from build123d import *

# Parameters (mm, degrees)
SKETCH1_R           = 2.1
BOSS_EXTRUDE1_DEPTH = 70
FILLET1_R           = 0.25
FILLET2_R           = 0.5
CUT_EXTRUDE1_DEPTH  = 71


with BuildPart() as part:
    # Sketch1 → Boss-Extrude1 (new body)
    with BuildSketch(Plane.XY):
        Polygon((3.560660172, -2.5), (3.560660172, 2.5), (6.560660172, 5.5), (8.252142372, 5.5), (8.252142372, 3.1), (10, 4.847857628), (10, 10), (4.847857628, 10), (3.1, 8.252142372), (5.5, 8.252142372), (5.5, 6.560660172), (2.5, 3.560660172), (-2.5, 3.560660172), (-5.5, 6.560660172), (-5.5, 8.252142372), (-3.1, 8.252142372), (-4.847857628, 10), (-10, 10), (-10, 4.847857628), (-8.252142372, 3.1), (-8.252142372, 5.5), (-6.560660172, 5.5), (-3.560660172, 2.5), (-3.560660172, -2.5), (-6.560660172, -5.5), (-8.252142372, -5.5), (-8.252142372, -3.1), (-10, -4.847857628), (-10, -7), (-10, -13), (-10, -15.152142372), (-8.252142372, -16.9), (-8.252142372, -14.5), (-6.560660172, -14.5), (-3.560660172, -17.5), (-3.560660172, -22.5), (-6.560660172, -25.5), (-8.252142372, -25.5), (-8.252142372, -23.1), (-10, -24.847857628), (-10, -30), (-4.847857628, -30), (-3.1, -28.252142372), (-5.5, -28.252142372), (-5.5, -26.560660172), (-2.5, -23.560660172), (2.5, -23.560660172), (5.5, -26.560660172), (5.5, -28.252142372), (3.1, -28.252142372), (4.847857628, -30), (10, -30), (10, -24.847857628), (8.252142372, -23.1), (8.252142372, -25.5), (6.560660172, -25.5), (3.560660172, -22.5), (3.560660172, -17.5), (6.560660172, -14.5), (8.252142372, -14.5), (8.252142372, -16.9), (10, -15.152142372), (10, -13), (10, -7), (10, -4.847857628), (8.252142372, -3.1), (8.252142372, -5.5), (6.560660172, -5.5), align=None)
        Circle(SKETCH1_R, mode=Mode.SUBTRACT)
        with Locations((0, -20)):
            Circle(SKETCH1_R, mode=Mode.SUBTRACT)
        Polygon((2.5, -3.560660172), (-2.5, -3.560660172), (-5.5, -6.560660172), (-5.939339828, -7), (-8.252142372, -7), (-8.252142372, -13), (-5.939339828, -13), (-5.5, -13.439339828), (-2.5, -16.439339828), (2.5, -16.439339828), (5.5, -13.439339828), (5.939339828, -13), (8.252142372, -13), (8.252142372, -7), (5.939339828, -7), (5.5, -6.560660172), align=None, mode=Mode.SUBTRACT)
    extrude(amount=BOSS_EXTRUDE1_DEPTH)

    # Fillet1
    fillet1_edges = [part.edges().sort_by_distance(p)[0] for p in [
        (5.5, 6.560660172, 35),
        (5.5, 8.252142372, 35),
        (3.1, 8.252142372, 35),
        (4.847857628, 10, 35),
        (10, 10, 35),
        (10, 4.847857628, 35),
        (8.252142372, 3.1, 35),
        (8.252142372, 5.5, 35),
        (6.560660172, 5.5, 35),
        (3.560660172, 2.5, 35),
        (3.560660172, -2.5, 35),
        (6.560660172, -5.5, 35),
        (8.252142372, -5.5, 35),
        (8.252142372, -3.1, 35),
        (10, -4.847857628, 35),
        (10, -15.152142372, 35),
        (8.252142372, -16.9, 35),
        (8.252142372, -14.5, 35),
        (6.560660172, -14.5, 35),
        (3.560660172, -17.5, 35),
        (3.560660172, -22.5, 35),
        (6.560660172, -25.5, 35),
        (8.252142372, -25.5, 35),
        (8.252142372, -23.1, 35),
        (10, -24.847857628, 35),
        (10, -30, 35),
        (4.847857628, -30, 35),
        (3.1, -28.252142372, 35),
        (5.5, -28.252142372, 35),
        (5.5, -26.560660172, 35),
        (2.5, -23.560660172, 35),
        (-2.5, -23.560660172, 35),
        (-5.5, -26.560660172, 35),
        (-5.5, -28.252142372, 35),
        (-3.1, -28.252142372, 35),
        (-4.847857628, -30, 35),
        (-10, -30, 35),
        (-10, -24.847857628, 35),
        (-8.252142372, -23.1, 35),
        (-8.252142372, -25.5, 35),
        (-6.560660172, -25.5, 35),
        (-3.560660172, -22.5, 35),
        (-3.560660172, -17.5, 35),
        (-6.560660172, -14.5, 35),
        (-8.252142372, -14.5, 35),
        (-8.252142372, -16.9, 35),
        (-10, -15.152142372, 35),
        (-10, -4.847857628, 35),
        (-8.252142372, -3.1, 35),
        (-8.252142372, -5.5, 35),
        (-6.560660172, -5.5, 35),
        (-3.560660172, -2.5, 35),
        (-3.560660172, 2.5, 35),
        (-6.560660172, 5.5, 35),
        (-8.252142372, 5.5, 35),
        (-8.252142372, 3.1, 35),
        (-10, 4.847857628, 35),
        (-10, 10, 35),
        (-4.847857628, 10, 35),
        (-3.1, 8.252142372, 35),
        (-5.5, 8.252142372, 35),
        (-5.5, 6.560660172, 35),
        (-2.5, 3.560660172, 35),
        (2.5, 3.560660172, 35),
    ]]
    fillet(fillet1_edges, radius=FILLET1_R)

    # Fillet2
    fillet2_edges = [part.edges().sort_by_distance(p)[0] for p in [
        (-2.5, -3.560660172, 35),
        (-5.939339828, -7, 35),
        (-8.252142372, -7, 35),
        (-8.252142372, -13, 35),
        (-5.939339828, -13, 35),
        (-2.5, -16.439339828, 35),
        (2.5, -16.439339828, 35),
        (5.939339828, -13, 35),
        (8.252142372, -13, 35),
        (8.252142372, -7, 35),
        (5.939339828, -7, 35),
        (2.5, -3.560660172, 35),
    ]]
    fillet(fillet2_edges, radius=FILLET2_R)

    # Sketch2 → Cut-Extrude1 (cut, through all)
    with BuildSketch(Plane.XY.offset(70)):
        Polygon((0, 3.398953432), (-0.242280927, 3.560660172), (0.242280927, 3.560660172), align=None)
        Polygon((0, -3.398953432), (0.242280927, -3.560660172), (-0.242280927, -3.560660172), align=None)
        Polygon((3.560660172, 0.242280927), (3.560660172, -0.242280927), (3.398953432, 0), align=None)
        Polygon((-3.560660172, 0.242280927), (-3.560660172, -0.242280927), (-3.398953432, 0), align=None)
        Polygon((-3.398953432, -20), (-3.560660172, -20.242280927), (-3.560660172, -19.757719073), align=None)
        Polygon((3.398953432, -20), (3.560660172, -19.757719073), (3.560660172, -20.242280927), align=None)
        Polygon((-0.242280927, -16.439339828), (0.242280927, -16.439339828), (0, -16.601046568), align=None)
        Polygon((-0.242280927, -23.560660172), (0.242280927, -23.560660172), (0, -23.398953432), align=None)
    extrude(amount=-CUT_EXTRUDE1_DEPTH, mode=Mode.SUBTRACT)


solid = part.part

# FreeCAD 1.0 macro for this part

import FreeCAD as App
import Part
import Sketcher
from FreeCAD import Vector
Q = App.Units.Quantity


def edges_at(feature, points):
    """Names of the edges that pass closest to the given points."""
    edges = feature.Shape.Edges
    near = lambda p: min(range(len(edges)), key=lambda i: edges[i].distToShape(Part.Vertex(*p))[0])
    return sorted({f"Edge{near(p) + 1}" for p in points})

doc = App.newDocument("Part")
body = doc.addObject("PartDesign::Body", "Body")

# Sketch on XY plane
sketch1 = body.newObject("Sketcher::SketchObject", "Sketch")
sketch1.AttachmentSupport = (doc.getObject("XY_Plane"), [""])
sketch1.MapMode = "FlatFace"
sketch1.addGeometry(Part.LineSegment(Vector(3.6, -2.5, 0), Vector(3.6, 2.5, 0)), False)
sketch1.addGeometry(Part.LineSegment(Vector(3.6, 2.5, 0), Vector(6.6, 5.5, 0)), False)
sketch1.addGeometry(Part.LineSegment(Vector(6.6, 5.5, 0), Vector(8.3, 5.5, 0)), False)
sketch1.addGeometry(Part.LineSegment(Vector(8.3, 5.5, 0), Vector(8.3, 3.1, 0)), False)
sketch1.addGeometry(Part.LineSegment(Vector(8.3, 3.1, 0), Vector(10, 4.8, 0)), False)
sketch1.addGeometry(Part.LineSegment(Vector(10, 4.8, 0), Vector(10, 10, 0)), False)
sketch1.addGeometry(Part.LineSegment(Vector(10, 10, 0), Vector(4.8, 10, 0)), False)
sketch1.addGeometry(Part.LineSegment(Vector(4.8, 10, 0), Vector(3.1, 8.3, 0)), False)
sketch1.addGeometry(Part.LineSegment(Vector(3.1, 8.3, 0), Vector(5.5, 8.3, 0)), False)
sketch1.addGeometry(Part.LineSegment(Vector(5.5, 8.3, 0), Vector(5.5, 6.6, 0)), False)
sketch1.addGeometry(Part.LineSegment(Vector(5.5, 6.6, 0), Vector(2.5, 3.6, 0)), False)
sketch1.addGeometry(Part.LineSegment(Vector(2.5, 3.6, 0), Vector(-2.5, 3.6, 0)), False)
sketch1.addGeometry(Part.LineSegment(Vector(-2.5, 3.6, 0), Vector(-5.5, 6.6, 0)), False)
sketch1.addGeometry(Part.LineSegment(Vector(-5.5, 6.6, 0), Vector(-5.5, 8.3, 0)), False)
sketch1.addGeometry(Part.LineSegment(Vector(-5.5, 8.3, 0), Vector(-3.1, 8.3, 0)), False)
sketch1.addGeometry(Part.LineSegment(Vector(-3.1, 8.3, 0), Vector(-4.8, 10, 0)), False)
sketch1.addGeometry(Part.LineSegment(Vector(-4.8, 10, 0), Vector(-10, 10, 0)), False)
sketch1.addGeometry(Part.LineSegment(Vector(-10, 10, 0), Vector(-10, 4.8, 0)), False)
sketch1.addGeometry(Part.LineSegment(Vector(-10, 4.8, 0), Vector(-8.3, 3.1, 0)), False)
sketch1.addGeometry(Part.LineSegment(Vector(-8.3, 3.1, 0), Vector(-8.3, 5.5, 0)), False)
sketch1.addGeometry(Part.LineSegment(Vector(-8.3, 5.5, 0), Vector(-6.6, 5.5, 0)), False)
sketch1.addGeometry(Part.LineSegment(Vector(-6.6, 5.5, 0), Vector(-3.6, 2.5, 0)), False)
sketch1.addGeometry(Part.LineSegment(Vector(-3.6, 2.5, 0), Vector(-3.6, -2.5, 0)), False)
sketch1.addGeometry(Part.LineSegment(Vector(-3.6, -2.5, 0), Vector(-6.6, -5.5, 0)), False)
sketch1.addGeometry(Part.LineSegment(Vector(-6.6, -5.5, 0), Vector(-8.3, -5.5, 0)), False)
sketch1.addGeometry(Part.LineSegment(Vector(-8.3, -5.5, 0), Vector(-8.3, -3.1, 0)), False)
sketch1.addGeometry(Part.LineSegment(Vector(-8.3, -3.1, 0), Vector(-10, -4.8, 0)), False)
sketch1.addGeometry(Part.LineSegment(Vector(-10, -4.8, 0), Vector(-10, -15.2, 0)), False)
sketch1.addGeometry(Part.LineSegment(Vector(-10, -15.2, 0), Vector(-8.3, -16.9, 0)), False)
sketch1.addGeometry(Part.LineSegment(Vector(-8.3, -16.9, 0), Vector(-8.3, -14.5, 0)), False)
sketch1.addGeometry(Part.LineSegment(Vector(-8.3, -14.5, 0), Vector(-6.6, -14.5, 0)), False)
sketch1.addGeometry(Part.LineSegment(Vector(-6.6, -14.5, 0), Vector(-3.6, -17.5, 0)), False)
sketch1.addGeometry(Part.LineSegment(Vector(-3.6, -17.5, 0), Vector(-3.6, -22.5, 0)), False)
sketch1.addGeometry(Part.LineSegment(Vector(-3.6, -22.5, 0), Vector(-6.6, -25.5, 0)), False)
sketch1.addGeometry(Part.LineSegment(Vector(-6.6, -25.5, 0), Vector(-8.3, -25.5, 0)), False)
sketch1.addGeometry(Part.LineSegment(Vector(-8.3, -25.5, 0), Vector(-8.3, -23.1, 0)), False)
sketch1.addGeometry(Part.LineSegment(Vector(-8.3, -23.1, 0), Vector(-10, -24.8, 0)), False)
sketch1.addGeometry(Part.LineSegment(Vector(-10, -24.8, 0), Vector(-10, -30, 0)), False)
sketch1.addGeometry(Part.LineSegment(Vector(-10, -30, 0), Vector(-4.8, -30, 0)), False)
sketch1.addGeometry(Part.LineSegment(Vector(-4.8, -30, 0), Vector(-3.1, -28.3, 0)), False)
sketch1.addGeometry(Part.LineSegment(Vector(-3.1, -28.3, 0), Vector(-5.5, -28.3, 0)), False)
sketch1.addGeometry(Part.LineSegment(Vector(-5.5, -28.3, 0), Vector(-5.5, -26.6, 0)), False)
sketch1.addGeometry(Part.LineSegment(Vector(-5.5, -26.6, 0), Vector(-2.5, -23.6, 0)), False)
sketch1.addGeometry(Part.LineSegment(Vector(-2.5, -23.6, 0), Vector(2.5, -23.6, 0)), False)
sketch1.addGeometry(Part.LineSegment(Vector(2.5, -23.6, 0), Vector(5.5, -26.6, 0)), False)
sketch1.addGeometry(Part.LineSegment(Vector(5.5, -26.6, 0), Vector(5.5, -28.3, 0)), False)
sketch1.addGeometry(Part.LineSegment(Vector(5.5, -28.3, 0), Vector(3.1, -28.3, 0)), False)
sketch1.addGeometry(Part.LineSegment(Vector(3.1, -28.3, 0), Vector(4.8, -30, 0)), False)
sketch1.addGeometry(Part.LineSegment(Vector(4.8, -30, 0), Vector(10, -30, 0)), False)
sketch1.addGeometry(Part.LineSegment(Vector(10, -30, 0), Vector(10, -24.8, 0)), False)
sketch1.addGeometry(Part.LineSegment(Vector(10, -24.8, 0), Vector(8.3, -23.1, 0)), False)
sketch1.addGeometry(Part.LineSegment(Vector(8.3, -23.1, 0), Vector(8.3, -25.5, 0)), False)
sketch1.addGeometry(Part.LineSegment(Vector(8.3, -25.5, 0), Vector(6.6, -25.5, 0)), False)
sketch1.addGeometry(Part.LineSegment(Vector(6.6, -25.5, 0), Vector(3.6, -22.5, 0)), False)
sketch1.addGeometry(Part.LineSegment(Vector(3.6, -22.5, 0), Vector(3.6, -17.5, 0)), False)
sketch1.addGeometry(Part.LineSegment(Vector(3.6, -17.5, 0), Vector(6.6, -14.5, 0)), False)
sketch1.addGeometry(Part.LineSegment(Vector(6.6, -14.5, 0), Vector(8.3, -14.5, 0)), False)
sketch1.addGeometry(Part.LineSegment(Vector(8.3, -14.5, 0), Vector(8.3, -16.9, 0)), False)
sketch1.addGeometry(Part.LineSegment(Vector(8.3, -16.9, 0), Vector(10, -15.2, 0)), False)
sketch1.addGeometry(Part.LineSegment(Vector(10, -15.2, 0), Vector(10, -4.8, 0)), False)
sketch1.addGeometry(Part.LineSegment(Vector(10, -4.8, 0), Vector(8.3, -3.1, 0)), False)
sketch1.addGeometry(Part.LineSegment(Vector(8.3, -3.1, 0), Vector(8.3, -5.5, 0)), False)
sketch1.addGeometry(Part.LineSegment(Vector(8.3, -5.5, 0), Vector(6.6, -5.5, 0)), False)
sketch1.addGeometry(Part.LineSegment(Vector(6.6, -5.5, 0), Vector(3.6, -2.5, 0)), False)
sketch1.addGeometry(Part.Circle(Vector(0, -20, 0), Vector(0, 0, 1), 2.1), False)
sketch1.addGeometry(Part.LineSegment(Vector(-2.5, -3.6, 0), Vector(2.5, -3.6, 0)), False)
sketch1.addGeometry(Part.LineSegment(Vector(2.5, -3.6, 0), Vector(5.9, -7, 0)), False)
sketch1.addGeometry(Part.LineSegment(Vector(5.9, -7, 0), Vector(8.3, -7, 0)), False)
sketch1.addGeometry(Part.LineSegment(Vector(8.3, -7, 0), Vector(8.3, -13, 0)), False)
sketch1.addGeometry(Part.LineSegment(Vector(8.3, -13, 0), Vector(5.9, -13, 0)), False)
sketch1.addGeometry(Part.LineSegment(Vector(5.9, -13, 0), Vector(2.5, -16.4, 0)), False)
sketch1.addGeometry(Part.LineSegment(Vector(2.5, -16.4, 0), Vector(-2.5, -16.4, 0)), False)
sketch1.addGeometry(Part.LineSegment(Vector(-2.5, -16.4, 0), Vector(-5.9, -13, 0)), False)
sketch1.addGeometry(Part.LineSegment(Vector(-5.9, -13, 0), Vector(-8.3, -13, 0)), False)
sketch1.addGeometry(Part.LineSegment(Vector(-8.3, -13, 0), Vector(-8.3, -7, 0)), False)
sketch1.addGeometry(Part.LineSegment(Vector(-8.3, -7, 0), Vector(-5.9, -7, 0)), False)
sketch1.addGeometry(Part.LineSegment(Vector(-5.9, -7, 0), Vector(-2.5, -3.6, 0)), False)
sketch1.addGeometry(Part.Circle(Vector(0, 0, 0), Vector(0, 0, 1), 2.1), False)
sketch1.addConstraint(Sketcher.Constraint("Coincident", 0, 2, 1, 1))
sketch1.addConstraint(Sketcher.Constraint("Coincident", 1, 2, 2, 1))
sketch1.addConstraint(Sketcher.Constraint("Coincident", 2, 2, 3, 1))
sketch1.addConstraint(Sketcher.Constraint("Coincident", 3, 2, 4, 1))
sketch1.addConstraint(Sketcher.Constraint("Coincident", 4, 2, 5, 1))
sketch1.addConstraint(Sketcher.Constraint("Coincident", 5, 2, 6, 1))
sketch1.addConstraint(Sketcher.Constraint("Coincident", 6, 2, 7, 1))
sketch1.addConstraint(Sketcher.Constraint("Coincident", 7, 2, 8, 1))
sketch1.addConstraint(Sketcher.Constraint("Coincident", 8, 2, 9, 1))
sketch1.addConstraint(Sketcher.Constraint("Coincident", 9, 2, 10, 1))
sketch1.addConstraint(Sketcher.Constraint("Coincident", 10, 2, 11, 1))
sketch1.addConstraint(Sketcher.Constraint("Coincident", 11, 2, 12, 1))
sketch1.addConstraint(Sketcher.Constraint("Coincident", 12, 2, 13, 1))
sketch1.addConstraint(Sketcher.Constraint("Coincident", 13, 2, 14, 1))
sketch1.addConstraint(Sketcher.Constraint("Coincident", 14, 2, 15, 1))
sketch1.addConstraint(Sketcher.Constraint("Coincident", 15, 2, 16, 1))
sketch1.addConstraint(Sketcher.Constraint("Coincident", 16, 2, 17, 1))
sketch1.addConstraint(Sketcher.Constraint("Coincident", 17, 2, 18, 1))
sketch1.addConstraint(Sketcher.Constraint("Coincident", 18, 2, 19, 1))
sketch1.addConstraint(Sketcher.Constraint("Coincident", 19, 2, 20, 1))
sketch1.addConstraint(Sketcher.Constraint("Coincident", 20, 2, 21, 1))
sketch1.addConstraint(Sketcher.Constraint("Coincident", 21, 2, 22, 1))
sketch1.addConstraint(Sketcher.Constraint("Coincident", 22, 2, 23, 1))
sketch1.addConstraint(Sketcher.Constraint("Coincident", 23, 2, 24, 1))
sketch1.addConstraint(Sketcher.Constraint("Coincident", 24, 2, 25, 1))
sketch1.addConstraint(Sketcher.Constraint("Coincident", 25, 2, 26, 1))
sketch1.addConstraint(Sketcher.Constraint("Coincident", 26, 2, 27, 1))
sketch1.addConstraint(Sketcher.Constraint("Coincident", 27, 2, 28, 1))
sketch1.addConstraint(Sketcher.Constraint("Coincident", 28, 2, 29, 1))
sketch1.addConstraint(Sketcher.Constraint("Coincident", 29, 2, 30, 1))
sketch1.addConstraint(Sketcher.Constraint("Coincident", 30, 2, 31, 1))
sketch1.addConstraint(Sketcher.Constraint("Coincident", 31, 2, 32, 1))
sketch1.addConstraint(Sketcher.Constraint("Coincident", 32, 2, 33, 1))
sketch1.addConstraint(Sketcher.Constraint("Coincident", 33, 2, 34, 1))
sketch1.addConstraint(Sketcher.Constraint("Coincident", 34, 2, 35, 1))
sketch1.addConstraint(Sketcher.Constraint("Coincident", 35, 2, 36, 1))
sketch1.addConstraint(Sketcher.Constraint("Coincident", 36, 2, 37, 1))
sketch1.addConstraint(Sketcher.Constraint("Coincident", 37, 2, 38, 1))
sketch1.addConstraint(Sketcher.Constraint("Coincident", 38, 2, 39, 1))
sketch1.addConstraint(Sketcher.Constraint("Coincident", 39, 2, 40, 1))
sketch1.addConstraint(Sketcher.Constraint("Coincident", 40, 2, 41, 1))
sketch1.addConstraint(Sketcher.Constraint("Coincident", 41, 2, 42, 1))
sketch1.addConstraint(Sketcher.Constraint("Coincident", 42, 2, 43, 1))
sketch1.addConstraint(Sketcher.Constraint("Coincident", 43, 2, 44, 1))
sketch1.addConstraint(Sketcher.Constraint("Coincident", 44, 2, 45, 1))
sketch1.addConstraint(Sketcher.Constraint("Coincident", 45, 2, 46, 1))
sketch1.addConstraint(Sketcher.Constraint("Coincident", 46, 2, 47, 1))
sketch1.addConstraint(Sketcher.Constraint("Coincident", 47, 2, 48, 1))
sketch1.addConstraint(Sketcher.Constraint("Coincident", 48, 2, 49, 1))
sketch1.addConstraint(Sketcher.Constraint("Coincident", 49, 2, 50, 1))
sketch1.addConstraint(Sketcher.Constraint("Coincident", 50, 2, 51, 1))
sketch1.addConstraint(Sketcher.Constraint("Coincident", 51, 2, 52, 1))
sketch1.addConstraint(Sketcher.Constraint("Coincident", 52, 2, 53, 1))
sketch1.addConstraint(Sketcher.Constraint("Coincident", 53, 2, 54, 1))
sketch1.addConstraint(Sketcher.Constraint("Coincident", 54, 2, 55, 1))
sketch1.addConstraint(Sketcher.Constraint("Coincident", 55, 2, 56, 1))
sketch1.addConstraint(Sketcher.Constraint("Coincident", 56, 2, 57, 1))
sketch1.addConstraint(Sketcher.Constraint("Coincident", 57, 2, 58, 1))
sketch1.addConstraint(Sketcher.Constraint("Coincident", 58, 2, 59, 1))
sketch1.addConstraint(Sketcher.Constraint("Coincident", 59, 2, 60, 1))
sketch1.addConstraint(Sketcher.Constraint("Coincident", 60, 2, 61, 1))
sketch1.addConstraint(Sketcher.Constraint("Coincident", 61, 2, 62, 1))
sketch1.addConstraint(Sketcher.Constraint("Coincident", 62, 2, 63, 1))
sketch1.addConstraint(Sketcher.Constraint("Coincident", 63, 2, 0, 1))
sketch1.addConstraint(Sketcher.Constraint("Coincident", 65, 2, 66, 1))
sketch1.addConstraint(Sketcher.Constraint("Coincident", 66, 2, 67, 1))
sketch1.addConstraint(Sketcher.Constraint("Coincident", 67, 2, 68, 1))
sketch1.addConstraint(Sketcher.Constraint("Coincident", 68, 2, 69, 1))
sketch1.addConstraint(Sketcher.Constraint("Coincident", 69, 2, 70, 1))
sketch1.addConstraint(Sketcher.Constraint("Coincident", 70, 2, 71, 1))
sketch1.addConstraint(Sketcher.Constraint("Coincident", 71, 2, 72, 1))
sketch1.addConstraint(Sketcher.Constraint("Coincident", 72, 2, 73, 1))
sketch1.addConstraint(Sketcher.Constraint("Coincident", 73, 2, 74, 1))
sketch1.addConstraint(Sketcher.Constraint("Coincident", 74, 2, 75, 1))
sketch1.addConstraint(Sketcher.Constraint("Coincident", 75, 2, 76, 1))
sketch1.addConstraint(Sketcher.Constraint("Coincident", 76, 2, 65, 1))
sketch1.addConstraint(Sketcher.Constraint("Vertical", 0))
sketch1.addConstraint(Sketcher.Constraint("Horizontal", 2))
sketch1.addConstraint(Sketcher.Constraint("Vertical", 3))
sketch1.addConstraint(Sketcher.Constraint("Vertical", 5))
sketch1.addConstraint(Sketcher.Constraint("Horizontal", 6))
sketch1.addConstraint(Sketcher.Constraint("Horizontal", 8))
sketch1.addConstraint(Sketcher.Constraint("Vertical", 9))
sketch1.addConstraint(Sketcher.Constraint("Horizontal", 11))
sketch1.addConstraint(Sketcher.Constraint("Vertical", 13))
sketch1.addConstraint(Sketcher.Constraint("Horizontal", 14))
sketch1.addConstraint(Sketcher.Constraint("Horizontal", 16))
sketch1.addConstraint(Sketcher.Constraint("Vertical", 17))
sketch1.addConstraint(Sketcher.Constraint("Vertical", 19))
sketch1.addConstraint(Sketcher.Constraint("Horizontal", 20))
sketch1.addConstraint(Sketcher.Constraint("Vertical", 22))
sketch1.addConstraint(Sketcher.Constraint("Horizontal", 24))
sketch1.addConstraint(Sketcher.Constraint("Vertical", 25))
sketch1.addConstraint(Sketcher.Constraint("Vertical", 27))
sketch1.addConstraint(Sketcher.Constraint("Vertical", 29))
sketch1.addConstraint(Sketcher.Constraint("Horizontal", 30))
sketch1.addConstraint(Sketcher.Constraint("Vertical", 32))
sketch1.addConstraint(Sketcher.Constraint("Horizontal", 34))
sketch1.addConstraint(Sketcher.Constraint("Vertical", 35))
sketch1.addConstraint(Sketcher.Constraint("Vertical", 37))
sketch1.addConstraint(Sketcher.Constraint("Horizontal", 38))
sketch1.addConstraint(Sketcher.Constraint("Horizontal", 40))
sketch1.addConstraint(Sketcher.Constraint("Vertical", 41))
sketch1.addConstraint(Sketcher.Constraint("Horizontal", 43))
sketch1.addConstraint(Sketcher.Constraint("Vertical", 45))
sketch1.addConstraint(Sketcher.Constraint("Horizontal", 46))
sketch1.addConstraint(Sketcher.Constraint("Horizontal", 48))
sketch1.addConstraint(Sketcher.Constraint("Vertical", 49))
sketch1.addConstraint(Sketcher.Constraint("Vertical", 51))
sketch1.addConstraint(Sketcher.Constraint("Horizontal", 52))
sketch1.addConstraint(Sketcher.Constraint("Vertical", 54))
sketch1.addConstraint(Sketcher.Constraint("Horizontal", 56))
sketch1.addConstraint(Sketcher.Constraint("Vertical", 57))
sketch1.addConstraint(Sketcher.Constraint("Vertical", 59))
sketch1.addConstraint(Sketcher.Constraint("Vertical", 61))
sketch1.addConstraint(Sketcher.Constraint("Horizontal", 62))
sketch1.addConstraint(Sketcher.Constraint("Horizontal", 65))
sketch1.addConstraint(Sketcher.Constraint("Horizontal", 67))
sketch1.addConstraint(Sketcher.Constraint("Vertical", 68))
sketch1.addConstraint(Sketcher.Constraint("Horizontal", 69))
sketch1.addConstraint(Sketcher.Constraint("Horizontal", 71))
sketch1.addConstraint(Sketcher.Constraint("Horizontal", 73))
sketch1.addConstraint(Sketcher.Constraint("Vertical", 74))
sketch1.addConstraint(Sketcher.Constraint("Horizontal", 75))
sketch1.addConstraint(Sketcher.Constraint("Coincident", 77, 3, -1, 1))
sketch1.addConstraint(Sketcher.Constraint("Equal", 64, 77))
sketch1.addConstraint(Sketcher.Constraint("Symmetric", 0, 2, 22, 2, -1, 1))
sketch1.addConstraint(Sketcher.Constraint("Symmetric", 1, 2, 23, 2, -1, 1))
sketch1.addConstraint(Sketcher.Constraint("Symmetric", 3, 2, 25, 2, -1, 1))
sketch1.addConstraint(Sketcher.Constraint("Symmetric", 4, 2, 26, 2, -1, 1))
sketch1.addConstraint(Sketcher.Constraint("Symmetric", 17, 2, 59, 2, -1, 1))
sketch1.addConstraint(Sketcher.Constraint("Symmetric", 18, 2, 60, 2, -1, 1))
sketch1.addConstraint(Sketcher.Constraint("Symmetric", 20, 2, 62, 2, -1, 1))
sketch1.addConstraint(Sketcher.Constraint("Symmetric", 11, 2, 65, 2, -1, 1))
sketch1.addConstraint(Sketcher.Constraint("Symmetric", 9, 2, 12, 2, -2))
sketch1.addConstraint(Sketcher.Constraint("Symmetric", 7, 2, 14, 2, -2))
sketch1.addConstraint(Sketcher.Constraint("Symmetric", 6, 2, 15, 2, -2))
sketch1.addConstraint(Sketcher.Constraint("Symmetric", 4, 2, 17, 2, -2))
sketch1.addConstraint(Sketcher.Constraint("Symmetric", 3, 2, 18, 2, -2))
sketch1.addConstraint(Sketcher.Constraint("Symmetric", 1, 2, 20, 2, -2))
sketch1.addConstraint(Sketcher.Constraint("Symmetric", 41, 2, 44, 2, -2))
sketch1.addConstraint(Sketcher.Constraint("Symmetric", 39, 2, 46, 2, -2))
sketch1.addConstraint(Sketcher.Constraint("Symmetric", 38, 2, 47, 2, -2))
sketch1.addConstraint(Sketcher.Constraint("Symmetric", 36, 2, 49, 2, -2))
sketch1.addConstraint(Sketcher.Constraint("Symmetric", 35, 2, 50, 2, -2))
sketch1.addConstraint(Sketcher.Constraint("Symmetric", 33, 2, 52, 2, -2))
sketch1.addConstraint(Sketcher.Constraint("Symmetric", 32, 2, 53, 2, -2))
sketch1.addConstraint(Sketcher.Constraint("Symmetric", 30, 2, 55, 2, -2))
sketch1.addConstraint(Sketcher.Constraint("Symmetric", 28, 2, 57, 2, -2))
sketch1.addConstraint(Sketcher.Constraint("Symmetric", 69, 2, 72, 2, -2))
sketch1.addConstraint(Sketcher.Constraint("Symmetric", 67, 2, 74, 2, -2))
sketch1.addConstraint(Sketcher.Constraint("PointOnObject", 64, 3, -2))
sketch1.addConstraint(Sketcher.Constraint("Parallel", 1, 4))
sketch1.addConstraint(Sketcher.Constraint("Parallel", 4, 7))
sketch1.addConstraint(Sketcher.Constraint("Parallel", 7, 10))
sketch1.addConstraint(Sketcher.Constraint("Perpendicular", 10, 12))
sketch1.addConstraint(Sketcher.Constraint("Parallel", 12, 15))
sketch1.addConstraint(Sketcher.Constraint("Parallel", 18, 21))
sketch1.addConstraint(Sketcher.Constraint("Perpendicular", 26, 28))
sketch1.addConstraint(Sketcher.Constraint("Parallel", 28, 31))
sketch1.addConstraint(Sketcher.Constraint("Perpendicular", 31, 33))
sketch1.addConstraint(Sketcher.Constraint("Parallel", 33, 36))
sketch1.addConstraint(Sketcher.Constraint("Parallel", 36, 39))
sketch1.addConstraint(Sketcher.Constraint("Parallel", 39, 42))
sketch1.addConstraint(Sketcher.Constraint("Perpendicular", 42, 44))
sketch1.addConstraint(Sketcher.Constraint("Perpendicular", 53, 55))
sketch1.addConstraint(Sketcher.Constraint("Parallel", 55, 58))
sketch1.addConstraint(Sketcher.Constraint("Parallel", 60, 63))
sketch1.addConstraint(Sketcher.Constraint("Parallel", 63, 66))
sketch1.addConstraint(Sketcher.Constraint("Perpendicular", 66, 70))
sketch1.addConstraint(Sketcher.Constraint("Perpendicular", 70, 72))
sketch1.addConstraint(Sketcher.Constraint("Perpendicular", 72, 76))
sketch1.addConstraint(Sketcher.Constraint("Vertical", 25, 2, 28, 2))
sketch1.addConstraint(Sketcher.Constraint("Vertical", 23, 2, 30, 2))
sketch1.addConstraint(Sketcher.Constraint("Vertical", 22, 2, 31, 2))
sketch1.addConstraint(Sketcher.Constraint("Vertical", 30, 2, 33, 2))
sketch1.addConstraint(Sketcher.Constraint("Vertical", 29, 2, 34, 2))
sketch1.addConstraint(Sketcher.Constraint("Vertical", 27, 2, 36, 2))
sketch1.addConstraint(Sketcher.Constraint("Vertical", 15, 2, 38, 2))
sketch1.addConstraint(Sketcher.Constraint("Vertical", 14, 2, 39, 2))
sketch1.addConstraint(Sketcher.Constraint("Vertical", 13, 2, 40, 2))
sketch1.addConstraint(Sketcher.Constraint("Vertical", 11, 2, 42, 2))
sketch1.addConstraint(Sketcher.Constraint("Vertical", 61, 2, 67, 2))
sketch1.addConstraint(Sketcher.Constraint("Vertical", 66, 2, 69, 2))
sketch1.addConstraint(Sketcher.Constraint("Vertical", 65, 2, 70, 2))
sketch1.addConstraint(Sketcher.Constraint("Vertical", 72, 2, 75, 2))
sketch1.addConstraint(Sketcher.Constraint("Equal", 71, 0))
sketch1.addConstraint(Sketcher.Constraint("Equal", 46, 3))
sketch1.addConstraint(Sketcher.Constraint("Equal", 48, 5))
sketch1.addConstraint(Sketcher.Constraint("Equal", 62, 9))
sketch1.addConstraint(Sketcher.Constraint("Equal", 25, 29))
sketch1.addConstraint(Sketcher.Constraint("Equal", 22, 32))
sketch1.addConstraint(Sketcher.Constraint("Equal", 29, 35))
sketch1.addConstraint(Sketcher.Constraint("Equal", 17, 37))
sketch1.addConstraint(Sketcher.Constraint("Equal", 13, 41))
sketch1.addConstraint(Sketcher.Constraint("Equal", 4, 7))
sketch1.addConstraint(Sketcher.Constraint("Equal", 1, 10))
sketch1.addConstraint(Sketcher.Constraint("Diameter", 64, Q("4.2 mm")))
sketch1.addConstraint(Sketcher.Constraint("DistanceX", 11, 2, 11, 1, Q("5 mm")))
sketch1.addConstraint(Sketcher.Constraint("DistanceY", 68, 2, 68, 1, Q("6 mm")))
sketch1.addConstraint(Sketcher.Constraint("DistanceX", 8, 1, 8, 2, Q("2.4 mm")))
sketch1.addConstraint(Sketcher.Constraint("DistanceY", 64, 3, -1, 1, Q("20 mm")))
sketch1.addConstraint(Sketcher.Constraint("DistanceX", -1, 1, 4, 2, Q("10 mm")))
sketch1.addConstraint(Sketcher.Constraint("DistanceY", 37, 2, -1, 1, Q("30 mm")))
sketch1.addConstraint(Sketcher.Constraint("DistanceY", 66, 2, -1, 1, Q("7 mm")))
sketch1.addConstraint(Sketcher.Constraint("DistanceY", -1, 1, 1, 2, Q("5.5 mm")))
sketch1.addConstraint(Sketcher.Constraint("Distance", 66, Q("4.863961 mm")))
sketch1.addConstraint(Sketcher.Constraint("DistanceX", 2, 1, 2, 2, Q("1.691482 mm")))
pad1 = body.newObject("PartDesign::Pad", "Pad")
pad1.Profile = sketch1
pad1.Length = 70
doc.recompute()

fillet = body.newObject("PartDesign::Fillet", "Fillet")
fillet.Base = (pad1, edges_at(pad1, [
    (5.5, 6.561, 35),
    (5.5, 8.252, 35),
    (3.1, 8.252, 35),
    (4.848, 10, 35),
    (10, 10, 35),
    (10, 4.848, 35),
    (8.252, 3.1, 35),
    (8.252, 5.5, 35),
    (6.561, 5.5, 35),
    (3.561, 2.5, 35),
    (3.561, -2.5, 35),
    (6.561, -5.5, 35),
    (8.252, -5.5, 35),
    (8.252, -3.1, 35),
    (10, -4.848, 35),
    (10, -15.152, 35),
    (8.252, -16.9, 35),
    (8.252, -14.5, 35),
    (6.561, -14.5, 35),
    (3.561, -17.5, 35),
    (3.561, -22.5, 35),
    (6.561, -25.5, 35),
    (8.252, -25.5, 35),
    (8.252, -23.1, 35),
    (10, -24.848, 35),
    (10, -30, 35),
    (4.848, -30, 35),
    (3.1, -28.252, 35),
    (5.5, -28.252, 35),
    (5.5, -26.561, 35),
    (2.5, -23.561, 35),
    (-2.5, -23.561, 35),
    (-5.5, -26.561, 35),
    (-5.5, -28.252, 35),
    (-3.1, -28.252, 35),
    (-4.848, -30, 35),
    (-10, -30, 35),
    (-10, -24.848, 35),
    (-8.252, -23.1, 35),
    (-8.252, -25.5, 35),
    (-6.561, -25.5, 35),
    (-3.561, -22.5, 35),
    (-3.561, -17.5, 35),
    (-6.561, -14.5, 35),
    (-8.252, -14.5, 35),
    (-8.252, -16.9, 35),
    (-10, -15.152, 35),
    (-10, -4.848, 35),
    (-8.252, -3.1, 35),
    (-8.252, -5.5, 35),
    (-6.561, -5.5, 35),
    (-3.561, -2.5, 35),
    (-3.561, 2.5, 35),
    (-6.561, 5.5, 35),
    (-8.252, 5.5, 35),
    (-8.252, 3.1, 35),
    (-10, 4.848, 35),
    (-10, 10, 35),
    (-4.848, 10, 35),
    (-3.1, 8.252, 35),
    (-5.5, 8.252, 35),
    (-5.5, 6.561, 35),
    (-2.5, 3.561, 35),
    (2.5, 3.561, 35),
]))
fillet.Radius = 0.25
doc.recompute()

fillet2 = body.newObject("PartDesign::Fillet", "Fillet001")
fillet2.Base = (fillet, edges_at(fillet, [
    (-2.5, -3.561, 35),
    (-5.939, -7, 35),
    (-8.252, -7, 35),
    (-8.252, -13, 35),
    (-5.939, -13, 35),
    (-2.5, -16.439, 35),
    (2.5, -16.439, 35),
    (5.939, -13, 35),
    (8.252, -13, 35),
    (8.252, -7, 35),
    (5.939, -7, 35),
    (2.5, -3.561, 35),
]))
fillet2.Radius = 0.5

# Sketch on XY plane
sketch2 = body.newObject("Sketcher::SketchObject", "Sketch001")
sketch2.AttachmentSupport = (doc.getObject("XY_Plane"), [""])
sketch2.MapMode = "FlatFace"
sketch2.AttachmentOffset = App.Placement(Vector(0, 0, 70), App.Rotation())
sketch2.addGeometry(Part.LineSegment(Vector(-0.24, 3.56, 0), Vector(0, 3.4, 0)), False)
sketch2.addGeometry(Part.LineSegment(Vector(0, 3.4, 0), Vector(0.24, 3.56, 0)), False)
sketch2.addGeometry(Part.LineSegment(Vector(0.24, 3.56, 0), Vector(-0.24, 3.56, 0)), False)
sketch2.addGeometry(Part.LineSegment(Vector(0.24, -3.56, 0), Vector(0, -3.4, 0)), False)
sketch2.addGeometry(Part.LineSegment(Vector(0, -3.4, 0), Vector(-0.24, -3.56, 0)), False)
sketch2.addGeometry(Part.LineSegment(Vector(-0.24, -3.56, 0), Vector(0.24, -3.56, 0)), False)
sketch2.addGeometry(Part.LineSegment(Vector(3.56, -0.24, 0), Vector(3.56, 0.24, 0)), False)
sketch2.addGeometry(Part.LineSegment(Vector(3.56, 0.24, 0), Vector(3.4, 0, 0)), False)
sketch2.addGeometry(Part.LineSegment(Vector(3.4, 0, 0), Vector(3.56, -0.24, 0)), False)
sketch2.addGeometry(Part.LineSegment(Vector(-3.56, 0.24, 0), Vector(-3.56, -0.24, 0)), False)
sketch2.addGeometry(Part.LineSegment(Vector(-3.56, -0.24, 0), Vector(-3.4, 0, 0)), False)
sketch2.addGeometry(Part.LineSegment(Vector(-3.4, 0, 0), Vector(-3.56, 0.24, 0)), False)
sketch2.addGeometry(Part.LineSegment(Vector(-3.56, -20.24, 0), Vector(-3.4, -20, 0)), False)
sketch2.addGeometry(Part.LineSegment(Vector(-3.4, -20, 0), Vector(-3.56, -19.76, 0)), False)
sketch2.addGeometry(Part.LineSegment(Vector(-3.56, -19.76, 0), Vector(-3.56, -20.24, 0)), False)
sketch2.addGeometry(Part.LineSegment(Vector(3.56, -19.76, 0), Vector(3.4, -20, 0)), False)
sketch2.addGeometry(Part.LineSegment(Vector(3.4, -20, 0), Vector(3.56, -20.24, 0)), False)
sketch2.addGeometry(Part.LineSegment(Vector(3.56, -20.24, 0), Vector(3.56, -19.76, 0)), False)
sketch2.addGeometry(Part.LineSegment(Vector(0.24, -16.44, 0), Vector(-0.24, -16.44, 0)), False)
sketch2.addGeometry(Part.LineSegment(Vector(-0.24, -16.44, 0), Vector(0, -16.6, 0)), False)
sketch2.addGeometry(Part.LineSegment(Vector(0, -16.6, 0), Vector(0.24, -16.44, 0)), False)
sketch2.addGeometry(Part.LineSegment(Vector(-0.24, -23.56, 0), Vector(0.24, -23.56, 0)), False)
sketch2.addGeometry(Part.LineSegment(Vector(0.24, -23.56, 0), Vector(0, -23.4, 0)), False)
sketch2.addGeometry(Part.LineSegment(Vector(0, -23.4, 0), Vector(-0.24, -23.56, 0)), False)
sketch2.addConstraint(Sketcher.Constraint("Coincident", 0, 2, 1, 1))
sketch2.addConstraint(Sketcher.Constraint("Coincident", 1, 2, 2, 1))
sketch2.addConstraint(Sketcher.Constraint("Coincident", 2, 2, 0, 1))
sketch2.addConstraint(Sketcher.Constraint("Coincident", 3, 2, 4, 1))
sketch2.addConstraint(Sketcher.Constraint("Coincident", 4, 2, 5, 1))
sketch2.addConstraint(Sketcher.Constraint("Coincident", 5, 2, 3, 1))
sketch2.addConstraint(Sketcher.Constraint("Coincident", 6, 2, 7, 1))
sketch2.addConstraint(Sketcher.Constraint("Coincident", 7, 2, 8, 1))
sketch2.addConstraint(Sketcher.Constraint("Coincident", 8, 2, 6, 1))
sketch2.addConstraint(Sketcher.Constraint("Coincident", 9, 2, 10, 1))
sketch2.addConstraint(Sketcher.Constraint("Coincident", 10, 2, 11, 1))
sketch2.addConstraint(Sketcher.Constraint("Coincident", 11, 2, 9, 1))
sketch2.addConstraint(Sketcher.Constraint("Coincident", 12, 2, 13, 1))
sketch2.addConstraint(Sketcher.Constraint("Coincident", 13, 2, 14, 1))
sketch2.addConstraint(Sketcher.Constraint("Coincident", 14, 2, 12, 1))
sketch2.addConstraint(Sketcher.Constraint("Coincident", 15, 2, 16, 1))
sketch2.addConstraint(Sketcher.Constraint("Coincident", 16, 2, 17, 1))
sketch2.addConstraint(Sketcher.Constraint("Coincident", 17, 2, 15, 1))
sketch2.addConstraint(Sketcher.Constraint("Coincident", 18, 2, 19, 1))
sketch2.addConstraint(Sketcher.Constraint("Coincident", 19, 2, 20, 1))
sketch2.addConstraint(Sketcher.Constraint("Coincident", 20, 2, 18, 1))
sketch2.addConstraint(Sketcher.Constraint("Coincident", 21, 2, 22, 1))
sketch2.addConstraint(Sketcher.Constraint("Coincident", 22, 2, 23, 1))
sketch2.addConstraint(Sketcher.Constraint("Coincident", 23, 2, 21, 1))
sketch2.addConstraint(Sketcher.Constraint("Horizontal", 2))
sketch2.addConstraint(Sketcher.Constraint("Horizontal", 5))
sketch2.addConstraint(Sketcher.Constraint("Vertical", 6))
sketch2.addConstraint(Sketcher.Constraint("Vertical", 9))
sketch2.addConstraint(Sketcher.Constraint("Vertical", 14))
sketch2.addConstraint(Sketcher.Constraint("Vertical", 17))
sketch2.addConstraint(Sketcher.Constraint("Horizontal", 18))
sketch2.addConstraint(Sketcher.Constraint("Horizontal", 21))
sketch2.addConstraint(Sketcher.Constraint("Symmetric", 0, 2, 3, 2, -1, 1))
sketch2.addConstraint(Sketcher.Constraint("Symmetric", 1, 2, 4, 2, -1, 1))
sketch2.addConstraint(Sketcher.Constraint("Symmetric", 6, 2, 9, 2, -1, 1))
sketch2.addConstraint(Sketcher.Constraint("Symmetric", 7, 2, 10, 2, -1, 1))
sketch2.addConstraint(Sketcher.Constraint("Symmetric", 12, 2, 15, 2, -2))
sketch2.addConstraint(Sketcher.Constraint("Symmetric", 14, 2, 16, 2, -2))
sketch2.addConstraint(Sketcher.Constraint("PointOnObject", 0, 2, -2))
sketch2.addConstraint(Sketcher.Constraint("PointOnObject", 7, 2, -1))
sketch2.addConstraint(Sketcher.Constraint("PointOnObject", 19, 2, -2))
sketch2.addConstraint(Sketcher.Constraint("PointOnObject", 22, 2, -2))
sketch2.addConstraint(Sketcher.Constraint("Parallel", 0, 3))
sketch2.addConstraint(Sketcher.Constraint("Perpendicular", 3, 7))
sketch2.addConstraint(Sketcher.Constraint("Perpendicular", 4, 8))
sketch2.addConstraint(Sketcher.Constraint("Parallel", 8, 11))
sketch2.addConstraint(Sketcher.Constraint("Parallel", 10, 12))
sketch2.addConstraint(Sketcher.Constraint("Parallel", 11, 13))
sketch2.addConstraint(Sketcher.Constraint("Parallel", 12, 15))
sketch2.addConstraint(Sketcher.Constraint("Parallel", 13, 16))
sketch2.addConstraint(Sketcher.Constraint("Perpendicular", 15, 19))
sketch2.addConstraint(Sketcher.Constraint("Perpendicular", 16, 20))
sketch2.addConstraint(Sketcher.Constraint("Parallel", 19, 22))
sketch2.addConstraint(Sketcher.Constraint("Parallel", 20, 23))
sketch2.addConstraint(Sketcher.Constraint("Vertical", 10, 2, 12, 2))
sketch2.addConstraint(Sketcher.Constraint("Vertical", 11, 2, 13, 2))
sketch2.addConstraint(Sketcher.Constraint("Vertical", 4, 2, 18, 2))
sketch2.addConstraint(Sketcher.Constraint("Vertical", 20, 2, 21, 2))
sketch2.addConstraint(Sketcher.Constraint("Equal", 21, 6))
sketch2.addConstraint(Sketcher.Constraint("DistanceY", 12, 2, -1, 1, Q("20 mm")))
sketch2.addConstraint(Sketcher.Constraint("DistanceX", 2, 2, 2, 1, Q("0.484562 mm")))
sketch2.addConstraint(Sketcher.Constraint("Distance", 0, Q("0.291289 mm")))
sketch2.addConstraint(Sketcher.Constraint("DistanceY", -1, 1, 1, 2, Q("3.56066 mm")))
sketch2.addConstraint(Sketcher.Constraint("DistanceX", -1, 1, 6, 2, Q("3.56066 mm")))
sketch2.addConstraint(Sketcher.Constraint("DistanceY", 18, 2, -1, 1, Q("16.43934 mm")))
sketch2.addConstraint(Sketcher.Constraint("DistanceY", 21, 2, -1, 1, Q("23.56066 mm")))
pocket1 = body.newObject("PartDesign::Pocket", "Pocket")
pocket1.Profile = sketch2
pocket1.Type = "ThroughAll"

doc.recompute()
